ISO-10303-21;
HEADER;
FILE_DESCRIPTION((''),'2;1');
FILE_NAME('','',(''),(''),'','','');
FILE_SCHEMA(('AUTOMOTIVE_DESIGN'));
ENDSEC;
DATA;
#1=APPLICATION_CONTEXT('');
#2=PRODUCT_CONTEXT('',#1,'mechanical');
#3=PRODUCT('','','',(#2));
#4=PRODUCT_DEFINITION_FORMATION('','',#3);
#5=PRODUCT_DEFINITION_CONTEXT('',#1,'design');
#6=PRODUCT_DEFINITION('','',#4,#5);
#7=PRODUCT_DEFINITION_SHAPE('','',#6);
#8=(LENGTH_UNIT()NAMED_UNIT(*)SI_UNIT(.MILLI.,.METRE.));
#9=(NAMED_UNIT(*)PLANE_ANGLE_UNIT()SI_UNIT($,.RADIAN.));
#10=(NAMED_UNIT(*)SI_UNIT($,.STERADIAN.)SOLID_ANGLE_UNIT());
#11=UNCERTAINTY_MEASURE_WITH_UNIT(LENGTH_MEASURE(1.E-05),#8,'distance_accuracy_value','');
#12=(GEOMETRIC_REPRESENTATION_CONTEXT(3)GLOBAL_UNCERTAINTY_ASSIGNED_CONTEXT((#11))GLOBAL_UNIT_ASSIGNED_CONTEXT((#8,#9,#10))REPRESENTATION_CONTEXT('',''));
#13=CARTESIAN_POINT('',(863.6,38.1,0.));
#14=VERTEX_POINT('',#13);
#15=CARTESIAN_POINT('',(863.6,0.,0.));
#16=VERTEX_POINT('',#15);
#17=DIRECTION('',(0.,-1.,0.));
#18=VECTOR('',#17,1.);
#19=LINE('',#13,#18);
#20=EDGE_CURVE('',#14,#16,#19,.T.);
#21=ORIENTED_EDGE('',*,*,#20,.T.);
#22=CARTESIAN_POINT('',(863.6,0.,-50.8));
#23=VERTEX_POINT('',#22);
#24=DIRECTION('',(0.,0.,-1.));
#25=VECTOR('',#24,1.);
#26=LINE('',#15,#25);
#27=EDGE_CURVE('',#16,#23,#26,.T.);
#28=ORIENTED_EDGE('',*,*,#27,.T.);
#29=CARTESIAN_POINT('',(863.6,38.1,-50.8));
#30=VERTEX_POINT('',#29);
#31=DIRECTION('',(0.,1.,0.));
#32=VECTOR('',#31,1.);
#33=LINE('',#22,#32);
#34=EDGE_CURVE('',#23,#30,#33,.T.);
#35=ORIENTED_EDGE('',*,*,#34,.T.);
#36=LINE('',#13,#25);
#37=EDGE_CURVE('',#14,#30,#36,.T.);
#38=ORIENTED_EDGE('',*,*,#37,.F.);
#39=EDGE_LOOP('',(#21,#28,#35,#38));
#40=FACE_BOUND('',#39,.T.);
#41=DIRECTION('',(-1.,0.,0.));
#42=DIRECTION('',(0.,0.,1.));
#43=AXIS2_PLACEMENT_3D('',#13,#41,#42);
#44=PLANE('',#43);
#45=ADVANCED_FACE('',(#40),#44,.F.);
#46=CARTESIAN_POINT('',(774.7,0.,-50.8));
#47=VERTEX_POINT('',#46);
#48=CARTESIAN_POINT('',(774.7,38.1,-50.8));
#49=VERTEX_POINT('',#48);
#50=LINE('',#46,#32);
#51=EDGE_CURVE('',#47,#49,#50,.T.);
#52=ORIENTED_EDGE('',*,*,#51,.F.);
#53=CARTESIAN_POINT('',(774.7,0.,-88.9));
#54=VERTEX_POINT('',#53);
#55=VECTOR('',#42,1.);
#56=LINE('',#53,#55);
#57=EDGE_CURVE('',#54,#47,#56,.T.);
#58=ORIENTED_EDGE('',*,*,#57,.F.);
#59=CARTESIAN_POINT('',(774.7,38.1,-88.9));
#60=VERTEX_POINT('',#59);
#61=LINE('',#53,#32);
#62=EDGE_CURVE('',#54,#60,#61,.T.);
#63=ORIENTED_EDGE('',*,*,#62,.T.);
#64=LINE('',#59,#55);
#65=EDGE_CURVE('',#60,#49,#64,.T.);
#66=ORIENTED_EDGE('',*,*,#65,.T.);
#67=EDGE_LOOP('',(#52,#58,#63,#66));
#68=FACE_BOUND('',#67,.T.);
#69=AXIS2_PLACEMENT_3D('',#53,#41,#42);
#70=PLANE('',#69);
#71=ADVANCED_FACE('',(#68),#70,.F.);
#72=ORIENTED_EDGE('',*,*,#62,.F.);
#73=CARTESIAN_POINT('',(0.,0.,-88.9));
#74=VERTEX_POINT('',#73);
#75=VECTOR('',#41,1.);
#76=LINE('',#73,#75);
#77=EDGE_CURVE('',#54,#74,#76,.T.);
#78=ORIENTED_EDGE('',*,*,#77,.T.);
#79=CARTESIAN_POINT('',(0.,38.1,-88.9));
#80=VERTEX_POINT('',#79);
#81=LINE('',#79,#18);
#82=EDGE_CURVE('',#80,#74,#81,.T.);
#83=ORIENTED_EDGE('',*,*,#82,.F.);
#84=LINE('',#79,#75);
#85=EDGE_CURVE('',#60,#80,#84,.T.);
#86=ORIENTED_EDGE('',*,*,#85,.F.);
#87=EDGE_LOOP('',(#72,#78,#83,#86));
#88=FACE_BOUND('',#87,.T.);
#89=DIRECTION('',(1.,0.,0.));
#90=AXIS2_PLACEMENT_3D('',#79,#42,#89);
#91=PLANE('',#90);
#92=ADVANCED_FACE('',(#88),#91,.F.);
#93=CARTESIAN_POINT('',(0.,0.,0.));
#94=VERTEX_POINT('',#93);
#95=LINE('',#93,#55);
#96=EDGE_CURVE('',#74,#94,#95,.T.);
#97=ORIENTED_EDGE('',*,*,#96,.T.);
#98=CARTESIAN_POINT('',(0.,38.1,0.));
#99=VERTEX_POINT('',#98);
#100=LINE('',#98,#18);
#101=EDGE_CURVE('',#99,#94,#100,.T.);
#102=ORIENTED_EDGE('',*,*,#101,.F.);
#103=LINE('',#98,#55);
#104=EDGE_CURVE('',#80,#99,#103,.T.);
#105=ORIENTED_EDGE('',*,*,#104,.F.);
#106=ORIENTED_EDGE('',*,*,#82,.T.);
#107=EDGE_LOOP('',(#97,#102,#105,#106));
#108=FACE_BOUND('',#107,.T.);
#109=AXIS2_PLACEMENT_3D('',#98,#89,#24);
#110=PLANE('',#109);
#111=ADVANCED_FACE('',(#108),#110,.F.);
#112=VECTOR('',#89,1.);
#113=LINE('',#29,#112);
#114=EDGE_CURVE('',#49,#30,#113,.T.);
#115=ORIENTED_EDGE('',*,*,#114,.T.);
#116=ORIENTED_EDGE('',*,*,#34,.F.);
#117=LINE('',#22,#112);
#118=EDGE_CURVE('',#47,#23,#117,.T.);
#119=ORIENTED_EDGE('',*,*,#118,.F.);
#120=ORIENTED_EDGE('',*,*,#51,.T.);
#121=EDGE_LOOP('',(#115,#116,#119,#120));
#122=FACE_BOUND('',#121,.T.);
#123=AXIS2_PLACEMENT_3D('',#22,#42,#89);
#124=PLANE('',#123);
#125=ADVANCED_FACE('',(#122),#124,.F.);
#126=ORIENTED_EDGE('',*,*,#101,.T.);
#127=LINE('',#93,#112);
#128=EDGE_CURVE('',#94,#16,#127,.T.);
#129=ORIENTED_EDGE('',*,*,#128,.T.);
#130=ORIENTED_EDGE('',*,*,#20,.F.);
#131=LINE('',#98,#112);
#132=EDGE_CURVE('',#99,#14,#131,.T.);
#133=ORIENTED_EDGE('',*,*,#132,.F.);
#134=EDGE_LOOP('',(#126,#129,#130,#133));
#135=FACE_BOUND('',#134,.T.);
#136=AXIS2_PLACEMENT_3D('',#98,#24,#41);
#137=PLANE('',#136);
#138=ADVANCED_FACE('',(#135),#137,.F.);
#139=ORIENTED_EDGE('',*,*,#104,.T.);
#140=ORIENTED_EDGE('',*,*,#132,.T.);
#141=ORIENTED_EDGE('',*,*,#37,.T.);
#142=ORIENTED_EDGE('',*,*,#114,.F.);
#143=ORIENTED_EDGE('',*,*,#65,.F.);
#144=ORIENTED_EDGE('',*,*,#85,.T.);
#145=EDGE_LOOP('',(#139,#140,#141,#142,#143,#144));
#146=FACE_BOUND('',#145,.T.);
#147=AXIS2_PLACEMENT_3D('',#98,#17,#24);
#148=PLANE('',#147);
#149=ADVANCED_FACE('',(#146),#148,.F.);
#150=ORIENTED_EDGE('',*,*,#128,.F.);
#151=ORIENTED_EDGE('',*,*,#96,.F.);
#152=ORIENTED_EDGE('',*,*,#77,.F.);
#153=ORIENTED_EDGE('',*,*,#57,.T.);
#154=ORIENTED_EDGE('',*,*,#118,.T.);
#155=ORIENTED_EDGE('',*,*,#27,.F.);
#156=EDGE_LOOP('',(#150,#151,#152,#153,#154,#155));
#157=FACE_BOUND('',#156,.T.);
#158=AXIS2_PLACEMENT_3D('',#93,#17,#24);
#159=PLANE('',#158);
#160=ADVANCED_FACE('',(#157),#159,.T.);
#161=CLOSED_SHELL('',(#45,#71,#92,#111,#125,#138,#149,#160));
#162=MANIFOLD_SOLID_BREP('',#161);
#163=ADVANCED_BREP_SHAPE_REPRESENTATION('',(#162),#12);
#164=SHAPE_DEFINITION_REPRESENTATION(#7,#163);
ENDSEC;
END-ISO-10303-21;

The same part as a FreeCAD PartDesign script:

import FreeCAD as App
import Part
import Sketcher
from FreeCAD import Vector
Q = App.Units.Quantity

doc = App.newDocument("Part")
body = doc.addObject("PartDesign::Body", "Body")

# Sketch on XZ plane
sketch1 = doc.addObject("Sketcher::SketchObject", "Sketch")
body.addObject(sketch1)
sketch1.AttachmentSupport = (doc.XZ_Plane, [""])
sketch1.MapMode = "FlatFace"
sketch1.addGeometry(Part.LineSegment(Vector(0, -89, 0), Vector(0, 0, 0)), False)
sketch1.addGeometry(Part.LineSegment(Vector(0, 0, 0), Vector(864, 0, 0)), False)
sketch1.addGeometry(Part.LineSegment(Vector(864, 0, 0), Vector(864, -89, 0)), False)
sketch1.addGeometry(Part.LineSegment(Vector(864, -89, 0), Vector(0, -89, 0)), False)
sketch1.addConstraint(Sketcher.Constraint("Coincident", 0, 2, 1, 1))
sketch1.addConstraint(Sketcher.Constraint("Coincident", 1, 2, 2, 1))
sketch1.addConstraint(Sketcher.Constraint("Coincident", 2, 2, 3, 1))
sketch1.addConstraint(Sketcher.Constraint("Coincident", 3, 2, 0, 1))
sketch1.addConstraint(Sketcher.Constraint("Vertical", 0))
sketch1.addConstraint(Sketcher.Constraint("Horizontal", 1))
sketch1.addConstraint(Sketcher.Constraint("Vertical", 2))
sketch1.addConstraint(Sketcher.Constraint("Horizontal", 3))
sketch1.addConstraint(Sketcher.Constraint("Coincident", 0, 2, -1, 1))
sketch1.addConstraint(Sketcher.Constraint("DistanceX", 1, 1, 1, 2, Q("34 in")))
sketch1.addConstraint(Sketcher.Constraint("DistanceY", 0, 1, 0, 2, Q("3.5 in")))
pad1 = doc.addObject("PartDesign::Pad", "Pad")
body.addObject(pad1)
pad1.Profile = sketch1
pad1.Length = Q("1.5 in")
pad1.Reversed = True

# Sketch on XZ plane
sketch2 = doc.addObject("Sketcher::SketchObject", "Sketch001")
body.addObject(sketch2)
sketch2.AttachmentSupport = (doc.XZ_Plane, [""])
sketch2.MapMode = "FlatFace"
sketch2.AttachmentOffset = App.Placement(Vector(0, 0, -1.5 * 25.4), App.Rotation())
sketch2.addGeometry(Part.LineSegment(Vector(775, -89, 0), Vector(775, -51, 0)), False)
sketch2.addGeometry(Part.LineSegment(Vector(775, -51, 0), Vector(864, -51, 0)), False)
sketch2.addGeometry(Part.LineSegment(Vector(864, -51, 0), Vector(864, -89, 0)), False)
sketch2.addGeometry(Part.LineSegment(Vector(864, -89, 0), Vector(775, -89, 0)), False)
sketch2.addConstraint(Sketcher.Constraint("Coincident", 0, 2, 1, 1))
sketch2.addConstraint(Sketcher.Constraint("Coincident", 1, 2, 2, 1))
sketch2.addConstraint(Sketcher.Constraint("Coincident", 2, 2, 3, 1))
sketch2.addConstraint(Sketcher.Constraint("Coincident", 3, 2, 0, 1))
sketch2.addConstraint(Sketcher.Constraint("Vertical", 0))
sketch2.addConstraint(Sketcher.Constraint("Horizontal", 1))
sketch2.addConstraint(Sketcher.Constraint("Vertical", 2))
sketch2.addConstraint(Sketcher.Constraint("Horizontal", 3))
sketch2.addConstraint(Sketcher.Constraint("DistanceX", 1, 1, 1, 2, Q("3.5 in")))
sketch2.addConstraint(Sketcher.Constraint("DistanceY", 0, 1, 0, 2, Q("1.5 in")))
sketch2.addConstraint(Sketcher.Constraint("DistanceY", 0, 2, -1, 1, Q("2 in")))
sketch2.addConstraint(Sketcher.Constraint("DistanceX", -1, 1, 1, 2, Q("34 in")))
pocket1 = doc.addObject("PartDesign::Pocket", "Pocket")
body.addObject(pocket1)
pocket1.Profile = sketch2
pocket1.Type = "ThroughAll"
pocket1.Reversed = True

doc.recompute()
